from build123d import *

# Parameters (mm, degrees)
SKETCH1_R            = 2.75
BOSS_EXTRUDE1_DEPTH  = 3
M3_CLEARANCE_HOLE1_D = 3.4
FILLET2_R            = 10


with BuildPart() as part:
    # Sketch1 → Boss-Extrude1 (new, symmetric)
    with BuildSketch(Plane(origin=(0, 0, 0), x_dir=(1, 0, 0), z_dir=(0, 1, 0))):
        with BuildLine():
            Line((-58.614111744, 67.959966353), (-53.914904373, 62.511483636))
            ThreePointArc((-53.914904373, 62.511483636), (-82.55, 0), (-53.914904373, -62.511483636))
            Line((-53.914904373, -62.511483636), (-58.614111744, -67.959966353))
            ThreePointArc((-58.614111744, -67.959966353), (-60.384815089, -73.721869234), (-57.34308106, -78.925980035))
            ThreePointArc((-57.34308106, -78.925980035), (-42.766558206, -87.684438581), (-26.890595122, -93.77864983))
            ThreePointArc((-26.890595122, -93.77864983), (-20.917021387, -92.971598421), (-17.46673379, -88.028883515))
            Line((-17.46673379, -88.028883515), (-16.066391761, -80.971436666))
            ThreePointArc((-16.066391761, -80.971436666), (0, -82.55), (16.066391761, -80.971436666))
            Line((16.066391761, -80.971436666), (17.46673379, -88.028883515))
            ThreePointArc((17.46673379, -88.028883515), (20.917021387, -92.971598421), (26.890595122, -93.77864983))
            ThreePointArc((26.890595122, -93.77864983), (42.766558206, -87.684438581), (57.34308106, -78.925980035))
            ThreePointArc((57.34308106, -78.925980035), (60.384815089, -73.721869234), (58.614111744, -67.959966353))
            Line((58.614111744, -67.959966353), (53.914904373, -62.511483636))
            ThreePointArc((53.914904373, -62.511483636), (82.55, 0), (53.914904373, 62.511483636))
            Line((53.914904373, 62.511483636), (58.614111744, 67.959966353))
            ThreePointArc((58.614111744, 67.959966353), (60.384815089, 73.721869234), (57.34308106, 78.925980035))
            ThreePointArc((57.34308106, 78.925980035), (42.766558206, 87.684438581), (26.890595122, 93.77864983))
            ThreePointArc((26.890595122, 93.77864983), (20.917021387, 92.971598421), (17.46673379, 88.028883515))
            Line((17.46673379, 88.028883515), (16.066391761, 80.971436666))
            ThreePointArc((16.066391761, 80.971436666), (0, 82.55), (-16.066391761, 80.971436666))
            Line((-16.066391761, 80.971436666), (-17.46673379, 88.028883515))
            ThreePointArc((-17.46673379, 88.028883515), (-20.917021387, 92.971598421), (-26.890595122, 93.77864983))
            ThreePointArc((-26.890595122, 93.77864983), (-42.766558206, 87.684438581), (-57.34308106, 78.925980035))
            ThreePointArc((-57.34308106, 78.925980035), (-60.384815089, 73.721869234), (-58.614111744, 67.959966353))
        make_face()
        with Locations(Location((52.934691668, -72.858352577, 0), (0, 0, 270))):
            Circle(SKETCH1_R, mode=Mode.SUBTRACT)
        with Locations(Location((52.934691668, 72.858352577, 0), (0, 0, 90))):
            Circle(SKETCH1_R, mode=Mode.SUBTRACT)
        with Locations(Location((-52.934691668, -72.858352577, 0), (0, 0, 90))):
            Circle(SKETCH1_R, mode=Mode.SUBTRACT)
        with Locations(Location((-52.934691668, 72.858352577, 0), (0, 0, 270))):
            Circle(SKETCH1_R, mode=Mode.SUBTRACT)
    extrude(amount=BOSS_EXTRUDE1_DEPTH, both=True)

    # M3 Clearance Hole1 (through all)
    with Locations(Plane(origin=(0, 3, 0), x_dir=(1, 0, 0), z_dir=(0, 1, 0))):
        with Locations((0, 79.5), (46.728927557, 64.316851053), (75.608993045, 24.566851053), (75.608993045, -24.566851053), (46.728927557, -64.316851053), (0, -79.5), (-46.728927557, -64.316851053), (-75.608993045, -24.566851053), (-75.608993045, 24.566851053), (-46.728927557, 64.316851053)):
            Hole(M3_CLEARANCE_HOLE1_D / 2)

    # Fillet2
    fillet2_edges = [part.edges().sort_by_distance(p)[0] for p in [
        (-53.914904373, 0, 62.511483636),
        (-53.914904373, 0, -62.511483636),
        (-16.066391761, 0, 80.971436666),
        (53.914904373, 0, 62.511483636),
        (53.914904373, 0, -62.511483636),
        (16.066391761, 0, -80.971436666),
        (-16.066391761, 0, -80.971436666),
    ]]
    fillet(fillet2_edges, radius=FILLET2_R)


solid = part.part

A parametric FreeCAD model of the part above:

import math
import FreeCAD as App
import Part
import Sketcher

V = App.Vector


def edges_at(feature, points):
    """Names of the edges that pass closest to the given points."""
    edges = feature.Shape.Edges
    near = lambda p: min(range(len(edges)), key=lambda i: edges[i].distToShape(Part.Vertex(*p))[0])
    return sorted({f"Edge{near(p) + 1}" for p in points})

doc = App.newDocument("Part")
body = doc.addObject("PartDesign::Body", "Body")

sketch1 = doc.addObject("Sketcher::SketchObject", "Sketch")
body.addObject(sketch1)
sketch1.AttachmentSupport = (doc.XZ_Plane, [""])
sketch1.MapMode = "FlatFace"
sketch1.addGeometry([
    Part.LineSegment(V(-58.614112, -67.959966, 0), V(-53.914904, -62.511484, 0)),
    Part.ArcOfCircle(Part.Circle(V(0, 0, 0), V(0, 0, 1), 82.55), math.radians(130.777113), math.radians(229.222887)),
    Part.LineSegment(V(-53.914904, 62.511484, 0), V(-58.614112, 67.959966, 0)),
    Part.ArcOfCircle(Part.Circle(V(-52.934692, 72.858353, 0), V(0, 0, 1), 7.5), math.radians(126), math.radians(220.777113)),
    Part.ArcOfCircle(Part.Circle(V(0, 0, 0), V(0, 0, 1), 97.557876), math.radians(106), math.radians(126)),
    Part.ArcOfCircle(Part.Circle(V(-24.823315, 86.569187, 0), V(0, 0, 1), 7.5), math.radians(11.222887), math.radians(106)),
    Part.LineSegment(V(-17.466734, 88.028884, 0), V(-16.066392, 80.971437, 0)),
    Part.ArcOfCircle(Part.Circle(V(0, 0, 0), V(0, 0, 1), 82.55), math.radians(78.777113), math.radians(101.222887)),
    Part.LineSegment(V(16.066392, 80.971437, 0), V(17.466734, 88.028884, 0)),
    Part.ArcOfCircle(Part.Circle(V(24.823315, 86.569187, 0), V(0, 0, 1), 7.5), math.radians(74), math.radians(168.777113)),
    Part.ArcOfCircle(Part.Circle(V(0, 0, 0), V(0, 0, 1), 97.557876), math.radians(54), math.radians(74)),
    Part.ArcOfCircle(Part.Circle(V(52.934692, 72.858353, 0), V(0, 0, 1), 7.5), math.radians(-40.777113), math.radians(54)),
    Part.LineSegment(V(58.614112, 67.959966, 0), V(53.914904, 62.511484, 0)),
    Part.ArcOfCircle(Part.Circle(V(0, 0, 0), V(0, 0, 1), 82.55), math.radians(-49.222887), math.radians(49.222887)),
    Part.LineSegment(V(53.914904, -62.511484, 0), V(58.614112, -67.959966, 0)),
    Part.ArcOfCircle(Part.Circle(V(52.934692, -72.858353, 0), V(0, 0, 1), 7.5), math.radians(-54), math.radians(40.777113)),
    Part.ArcOfCircle(Part.Circle(V(0, 0, 0), V(0, 0, 1), 97.557876), math.radians(-74), math.radians(-54)),
    Part.ArcOfCircle(Part.Circle(V(24.823315, -86.569187, 0), V(0, 0, 1), 7.5), math.radians(-168.777113), math.radians(-74)),
    Part.LineSegment(V(17.466734, -88.028884, 0), V(16.066392, -80.971437, 0)),
    Part.ArcOfCircle(Part.Circle(V(0, 0, 0), V(0, 0, 1), 82.55), math.radians(-101.222887), math.radians(-78.777113)),
    Part.LineSegment(V(-16.066392, -80.971437, 0), V(-17.466734, -88.028884, 0)),
    Part.ArcOfCircle(Part.Circle(V(-24.823315, -86.569187, 0), V(0, 0, 1), 7.5), math.radians(-106), math.radians(-11.222887)),
    Part.ArcOfCircle(Part.Circle(V(0, 0, 0), V(0, 0, 1), 97.557876), math.radians(-126), math.radians(-106)),
    Part.ArcOfCircle(Part.Circle(V(-52.934692, -72.858353, 0), V(0, 0, 1), 7.5), math.radians(139.222887), math.radians(234)),
    Part.Circle(V(-52.934692, 72.858353, 0), V(0, 0, 1), 2.75),
    Part.Circle(V(52.934692, 72.858353, 0), V(0, 0, 1), 2.75),
    Part.Circle(V(-52.934692, -72.858353, 0), V(0, 0, 1), 2.75),
    Part.Circle(V(52.934692, -72.858353, 0), V(0, 0, 1), 2.75),
], False)
sketch1.addConstraint([
    Sketcher.Constraint("Coincident", 0, 2, 1, 2),
    Sketcher.Constraint("Coincident", 1, 1, 2, 1),
    Sketcher.Constraint("Tangent", 2, 2, 3, 2),
    Sketcher.Constraint("Tangent", 3, 1, 4, 2),
    Sketcher.Constraint("Tangent", 4, 1, 5, 2),
    Sketcher.Constraint("Tangent", 5, 1, 6, 1),
    Sketcher.Constraint("Coincident", 6, 2, 7, 2),
    Sketcher.Constraint("Coincident", 7, 1, 8, 1),
    Sketcher.Constraint("Tangent", 8, 2, 9, 2),
    Sketcher.Constraint("Tangent", 9, 1, 10, 2),
    Sketcher.Constraint("Tangent", 10, 1, 11, 2),
    Sketcher.Constraint("Tangent", 11, 1, 12, 1),
    Sketcher.Constraint("Coincident", 12, 2, 13, 2),
    Sketcher.Constraint("Coincident", 13, 1, 14, 1),
    Sketcher.Constraint("Tangent", 14, 2, 15, 2),
    Sketcher.Constraint("Tangent", 15, 1, 16, 2),
    Sketcher.Constraint("Tangent", 16, 1, 17, 2),
    Sketcher.Constraint("Tangent", 17, 1, 18, 1),
    Sketcher.Constraint("Coincident", 18, 2, 19, 2),
    Sketcher.Constraint("Coincident", 19, 1, 20, 1),
    Sketcher.Constraint("Tangent", 20, 2, 21, 2),
    Sketcher.Constraint("Tangent", 21, 1, 22, 2),
    Sketcher.Constraint("Tangent", 22, 1, 23, 2),
    Sketcher.Constraint("Tangent", 23, 1, 0, 1),
    Sketcher.Constraint("Coincident", 1, 3, -1, 1),
    Sketcher.Constraint("Coincident", 4, 3, -1, 1),
    Sketcher.Constraint("Coincident", 7, 3, -1, 1),
    Sketcher.Constraint("Coincident", 10, 3, -1, 1),
    Sketcher.Constraint("Coincident", 13, 3, -1, 1),
    Sketcher.Constraint("Coincident", 16, 3, -1, 1),
    Sketcher.Constraint("Coincident", 19, 3, -1, 1),
    Sketcher.Constraint("Coincident", 22, 3, -1, 1),
    Sketcher.Constraint("Coincident", 24, 3, 3, 3),
    Sketcher.Constraint("Coincident", 25, 3, 11, 3),
    Sketcher.Constraint("Coincident", 26, 3, 23, 3),
    Sketcher.Constraint("Coincident", 27, 3, 15, 3),
    Sketcher.Constraint("Equal", 3, 5),
    Sketcher.Constraint("Equal", 1, 7),
    Sketcher.Constraint("Equal", 5, 9),
    Sketcher.Constraint("Equal", 4, 10),
    Sketcher.Constraint("Equal", 9, 11),
    Sketcher.Constraint("Equal", 7, 13),
    Sketcher.Constraint("Equal", 11, 15),
    Sketcher.Constraint("Equal", 10, 16),
    Sketcher.Constraint("Equal", 15, 17),
    Sketcher.Constraint("Equal", 13, 19),
    Sketcher.Constraint("Equal", 17, 21),
    Sketcher.Constraint("Equal", 16, 22),
    Sketcher.Constraint("Equal", 21, 23),
    Sketcher.Constraint("Equal", 24, 25),
    Sketcher.Constraint("Equal", 25, 26),
    Sketcher.Constraint("Equal", 26, 27),
    Sketcher.Constraint("Symmetric", 2, 2, 14, 2, -1, 1),
    Sketcher.Constraint("Symmetric", 5, 1, 17, 1, -1, 1),
    Sketcher.Constraint("Symmetric", 8, 2, 20, 2, -1, 1),
    Sketcher.Constraint("Symmetric", 11, 1, 23, 1, -1, 1),
    Sketcher.Constraint("Symmetric", 5, 1, 8, 2, -2),
    Sketcher.Constraint("Symmetric", 2, 2, 11, 1, -2),
    Sketcher.Constraint("Equal", 2, 6),
    Sketcher.Constraint("Diameter", 24, 5.5),
    Sketcher.Constraint("Radius", 3, 7.5),
    Sketcher.Constraint("Radius", 1, 82.55),
    Sketcher.Constraint("Radius", 4, 97.557876),
    Sketcher.Constraint("DistanceX", 24, 3, 6, 2, 36.8683),
    Sketcher.Constraint("DistanceX", 3, 3, -1, 1, 52.934692),
    Sketcher.Constraint("DistanceX", 2, 2, -1, 1, 58.614112),
])
pad1 = doc.addObject("PartDesign::Pad", "Pad")
body.addObject(pad1)
pad1.Profile = sketch1
pad1.Length = 6
pad1.Midplane = True

sketch2 = doc.addObject("Sketcher::SketchObject", "Sketch001")
body.addObject(sketch2)
sketch2.AttachmentSupport = (doc.XZ_Plane, [""])
sketch2.MapMode = "FlatFace"
sketch2.AttachmentOffset = App.Placement(V(0, 0, -3), App.Rotation())
sketch2.addGeometry([
    Part.Circle(V(0, -79.5, 0), V(0, 0, 1), 1.7),
    Part.Circle(V(46.728928, -64.316851, 0), V(0, 0, 1), 1.7),
    Part.Circle(V(75.608993, -24.566851, 0), V(0, 0, 1), 1.7),
    Part.Circle(V(75.608993, 24.566851, 0), V(0, 0, 1), 1.7),
    Part.Circle(V(46.728928, 64.316851, 0), V(0, 0, 1), 1.7),
    Part.Circle(V(0, 79.5, 0), V(0, 0, 1), 1.7),
    Part.Circle(V(-46.728928, 64.316851, 0), V(0, 0, 1), 1.7),
    Part.Circle(V(-75.608993, 24.566851, 0), V(0, 0, 1), 1.7),
    Part.Circle(V(-75.608993, -24.566851, 0), V(0, 0, 1), 1.7),
    Part.Circle(V(-46.728928, -64.316851, 0), V(0, 0, 1), 1.7),
], False)
sketch2.addConstraint([
    Sketcher.Constraint("Equal", 0, 1),
    Sketcher.Constraint("Equal", 1, 2),
    Sketcher.Constraint("Equal", 2, 3),
    Sketcher.Constraint("Equal", 3, 4),
    Sketcher.Constraint("Equal", 4, 5),
    Sketcher.Constraint("Equal", 5, 6),
    Sketcher.Constraint("Equal", 6, 7),
    Sketcher.Constraint("Equal", 7, 8),
    Sketcher.Constraint("Equal", 8, 9),
    Sketcher.Constraint("Symmetric", 0, 3, 5, 3, -1, 1),
    Sketcher.Constraint("Symmetric", 1, 3, 6, 3, -1, 1),
    Sketcher.Constraint("Symmetric", 2, 3, 7, 3, -1, 1),
    Sketcher.Constraint("Symmetric", 3, 3, 8, 3, -1, 1),
    Sketcher.Constraint("Symmetric", 4, 3, 9, 3, -1, 1),
    Sketcher.Constraint("Symmetric", 4, 3, 6, 3, -2),
    Sketcher.Constraint("Symmetric", 3, 3, 7, 3, -2),
    Sketcher.Constraint("PointOnObject", 0, 3, -2),
    Sketcher.Constraint("Diameter", 0, 3.4),
    Sketcher.Constraint("DistanceY", 0, 3, 5, 3, 159.0),
    Sketcher.Constraint("DistanceY", 1, 3, 2, 3, 39.75),
    Sketcher.Constraint("DistanceY", 1, 3, -1, 1, 64.316851),
    Sketcher.Constraint("DistanceX", 6, 3, 3, 3, 122.337921),
    Sketcher.Constraint("DistanceX", -1, 1, 1, 3, 46.728928),
])
doc.recompute()
hole = doc.addObject("PartDesign::Hole", "Hole")
body.addObject(hole)
hole.Profile = sketch2
hole.ThreadType = "None"
hole.Diameter = 3.4
hole.DepthType = "ThroughAll"
hole.Reversed = True
doc.recompute()

fillet = doc.addObject("PartDesign::Fillet", "Fillet")
body.addObject(fillet)
fillet.Base = (hole, edges_at(hole, [
    (-53.915, 0, 62.511),
    (-53.915, 0, -62.511),
    (-16.066, 0, 80.971),
    (53.915, 0, 62.511),
    (53.915, 0, -62.511),
    (16.066, 0, -80.971),
    (-16.066, 0, -80.971),
]))
fillet.Radius = 10

doc.recompute()
